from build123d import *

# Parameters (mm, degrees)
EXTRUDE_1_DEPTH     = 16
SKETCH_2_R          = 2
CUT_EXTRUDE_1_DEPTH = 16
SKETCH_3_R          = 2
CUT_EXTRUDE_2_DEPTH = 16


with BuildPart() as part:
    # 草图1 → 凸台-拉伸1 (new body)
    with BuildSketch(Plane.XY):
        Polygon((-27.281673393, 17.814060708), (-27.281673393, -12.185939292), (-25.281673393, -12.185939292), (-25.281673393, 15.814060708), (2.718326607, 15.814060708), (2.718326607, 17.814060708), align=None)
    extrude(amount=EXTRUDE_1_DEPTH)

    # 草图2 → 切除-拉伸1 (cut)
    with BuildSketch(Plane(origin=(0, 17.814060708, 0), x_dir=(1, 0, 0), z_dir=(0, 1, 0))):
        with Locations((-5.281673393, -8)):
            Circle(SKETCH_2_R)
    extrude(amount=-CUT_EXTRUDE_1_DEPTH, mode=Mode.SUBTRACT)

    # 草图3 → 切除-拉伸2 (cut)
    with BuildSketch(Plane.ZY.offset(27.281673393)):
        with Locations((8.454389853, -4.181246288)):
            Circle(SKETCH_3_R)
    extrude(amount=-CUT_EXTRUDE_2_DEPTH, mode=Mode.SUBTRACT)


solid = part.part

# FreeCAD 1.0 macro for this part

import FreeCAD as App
import Part
import Sketcher
Q = App.Units.Quantity


def add_polygon(sketch, points):
    """Adds a closed chain of lines whose ends are joined by coincident constraints."""
    first, n = sketch.GeometryCount, len(points)
    for a, b in zip(points, points[1:] + points[:1]):
        sketch.addGeometry(Part.LineSegment(App.Vector(*a, 0), App.Vector(*b, 0)), False)
    for i in range(n):
        sketch.addConstraint(Sketcher.Constraint("Coincident", first + i, 2, first + (i + 1) % n, 1))

doc = App.newDocument("Part")
params = doc.addObject("Spreadsheet::Sheet", "Params")
for row, (alias, value) in enumerate([
    ("sketch1_width", "2 mm"),
    ("sketch1_width2", "28 mm"),
    ("pad1_length", "16 mm"),
    ("sketch2_diameter", "4 mm"),
    ("pocket1_length", "16 mm"),
    ("sketch3_diameter", "4 mm"),
    ("pocket2_length", "16 mm"),
], start=1):
    params.set(f"A{row}", alias)
    params.set(f"B{row}", "=" + value)
    params.setAlias(f"B{row}", alias)

body = doc.addObject("PartDesign::Body", "Body")

sketch1 = body.newObject("Sketcher::SketchObject", "Sketch")
sketch1.AttachmentSupport = (doc.getObject("XY_Plane"), [""])
sketch1.MapMode = "FlatFace"
add_polygon(sketch1, [(-27.3, 17.8), (-27.3, -12.2), (-25.3, -12.2), (-25.3, 15.8), (2.7, 15.8), (2.7, 17.8)])
sketch1.addConstraint([
    Sketcher.Constraint("Vertical", 0),
    Sketcher.Constraint("Horizontal", 1),
    Sketcher.Constraint("Vertical", 2),
    Sketcher.Constraint("Horizontal", 3),
    Sketcher.Constraint("Vertical", 4),
    Sketcher.Constraint("Horizontal", 5),
    Sketcher.Constraint("Equal", 5, 0),
    Sketcher.Constraint("Equal", 3, 2),
    Sketcher.Constraint("DistanceX", 1, 1, 1, 2, Q("2 mm")),
    Sketcher.Constraint("DistanceX", 3, 1, 3, 2, Q("28 mm")),
    Sketcher.Constraint("DistanceY", 0, 2, -1, 1, Q("12.185939 mm")),
    Sketcher.Constraint("DistanceX", 0, 2, -1, 1, Q("27.281673 mm")),
])
sketch1.setExpression("Constraints[14]", "Params.sketch1_width")
sketch1.setExpression("Constraints[15]", "Params.sketch1_width2")
pad1 = body.newObject("PartDesign::Pad", "Pad")
pad1.Profile = sketch1
pad1.setExpression("Length", "Params.pad1_length")

sketch2 = body.newObject("Sketcher::SketchObject", "Sketch001")
sketch2.AttachmentSupport = (doc.getObject("XZ_Plane"), [""])
sketch2.MapMode = "FlatFace"
sketch2.AttachmentOffset = App.Placement(App.Vector(0, 0, -17.814061), App.Rotation())
sketch2.addGeometry(Part.Circle(App.Vector(-5.3, 8, 0), App.Vector(0, 0, 1), 2), False)
sketch2.addConstraint([
    Sketcher.Constraint("Diameter", 0, Q("4 mm")),
    Sketcher.Constraint("DistanceY", -1, 1, 0, 3, Q("8 mm")),
    Sketcher.Constraint("DistanceX", 0, 3, -1, 1, Q("5.281673 mm")),
])
sketch2.setExpression("Constraints[0]", "Params.sketch2_diameter")
pocket1 = body.newObject("PartDesign::Pocket", "Pocket")
pocket1.Profile = sketch2
pocket1.setExpression("Length", "Params.pocket1_length")
pocket1.Reversed = True

sketch3 = body.newObject("Sketcher::SketchObject", "Sketch002")
sketch3.AttachmentSupport = (doc.getObject("YZ_Plane"), [""])
sketch3.MapMode = "FlatFace"
sketch3.AttachmentOffset = App.Placement(App.Vector(0, 0, -27.281673), App.Rotation())
sketch3.addGeometry(Part.Circle(App.Vector(-4.2, 8.5, 0), App.Vector(0, 0, 1), 2), False)
sketch3.addConstraint([
    Sketcher.Constraint("Diameter", 0, Q("4 mm")),
    Sketcher.Constraint("DistanceY", -1, 1, 0, 3, Q("8.45439 mm")),
    Sketcher.Constraint("DistanceX", 0, 3, -1, 1, Q("4.181246 mm")),
])
sketch3.setExpression("Constraints[0]", "Params.sketch3_diameter")
pocket2 = body.newObject("PartDesign::Pocket", "Pocket001")
pocket2.Profile = sketch3
pocket2.setExpression("Length", "Params.pocket2_length")
pocket2.Reversed = True

doc.recompute()
